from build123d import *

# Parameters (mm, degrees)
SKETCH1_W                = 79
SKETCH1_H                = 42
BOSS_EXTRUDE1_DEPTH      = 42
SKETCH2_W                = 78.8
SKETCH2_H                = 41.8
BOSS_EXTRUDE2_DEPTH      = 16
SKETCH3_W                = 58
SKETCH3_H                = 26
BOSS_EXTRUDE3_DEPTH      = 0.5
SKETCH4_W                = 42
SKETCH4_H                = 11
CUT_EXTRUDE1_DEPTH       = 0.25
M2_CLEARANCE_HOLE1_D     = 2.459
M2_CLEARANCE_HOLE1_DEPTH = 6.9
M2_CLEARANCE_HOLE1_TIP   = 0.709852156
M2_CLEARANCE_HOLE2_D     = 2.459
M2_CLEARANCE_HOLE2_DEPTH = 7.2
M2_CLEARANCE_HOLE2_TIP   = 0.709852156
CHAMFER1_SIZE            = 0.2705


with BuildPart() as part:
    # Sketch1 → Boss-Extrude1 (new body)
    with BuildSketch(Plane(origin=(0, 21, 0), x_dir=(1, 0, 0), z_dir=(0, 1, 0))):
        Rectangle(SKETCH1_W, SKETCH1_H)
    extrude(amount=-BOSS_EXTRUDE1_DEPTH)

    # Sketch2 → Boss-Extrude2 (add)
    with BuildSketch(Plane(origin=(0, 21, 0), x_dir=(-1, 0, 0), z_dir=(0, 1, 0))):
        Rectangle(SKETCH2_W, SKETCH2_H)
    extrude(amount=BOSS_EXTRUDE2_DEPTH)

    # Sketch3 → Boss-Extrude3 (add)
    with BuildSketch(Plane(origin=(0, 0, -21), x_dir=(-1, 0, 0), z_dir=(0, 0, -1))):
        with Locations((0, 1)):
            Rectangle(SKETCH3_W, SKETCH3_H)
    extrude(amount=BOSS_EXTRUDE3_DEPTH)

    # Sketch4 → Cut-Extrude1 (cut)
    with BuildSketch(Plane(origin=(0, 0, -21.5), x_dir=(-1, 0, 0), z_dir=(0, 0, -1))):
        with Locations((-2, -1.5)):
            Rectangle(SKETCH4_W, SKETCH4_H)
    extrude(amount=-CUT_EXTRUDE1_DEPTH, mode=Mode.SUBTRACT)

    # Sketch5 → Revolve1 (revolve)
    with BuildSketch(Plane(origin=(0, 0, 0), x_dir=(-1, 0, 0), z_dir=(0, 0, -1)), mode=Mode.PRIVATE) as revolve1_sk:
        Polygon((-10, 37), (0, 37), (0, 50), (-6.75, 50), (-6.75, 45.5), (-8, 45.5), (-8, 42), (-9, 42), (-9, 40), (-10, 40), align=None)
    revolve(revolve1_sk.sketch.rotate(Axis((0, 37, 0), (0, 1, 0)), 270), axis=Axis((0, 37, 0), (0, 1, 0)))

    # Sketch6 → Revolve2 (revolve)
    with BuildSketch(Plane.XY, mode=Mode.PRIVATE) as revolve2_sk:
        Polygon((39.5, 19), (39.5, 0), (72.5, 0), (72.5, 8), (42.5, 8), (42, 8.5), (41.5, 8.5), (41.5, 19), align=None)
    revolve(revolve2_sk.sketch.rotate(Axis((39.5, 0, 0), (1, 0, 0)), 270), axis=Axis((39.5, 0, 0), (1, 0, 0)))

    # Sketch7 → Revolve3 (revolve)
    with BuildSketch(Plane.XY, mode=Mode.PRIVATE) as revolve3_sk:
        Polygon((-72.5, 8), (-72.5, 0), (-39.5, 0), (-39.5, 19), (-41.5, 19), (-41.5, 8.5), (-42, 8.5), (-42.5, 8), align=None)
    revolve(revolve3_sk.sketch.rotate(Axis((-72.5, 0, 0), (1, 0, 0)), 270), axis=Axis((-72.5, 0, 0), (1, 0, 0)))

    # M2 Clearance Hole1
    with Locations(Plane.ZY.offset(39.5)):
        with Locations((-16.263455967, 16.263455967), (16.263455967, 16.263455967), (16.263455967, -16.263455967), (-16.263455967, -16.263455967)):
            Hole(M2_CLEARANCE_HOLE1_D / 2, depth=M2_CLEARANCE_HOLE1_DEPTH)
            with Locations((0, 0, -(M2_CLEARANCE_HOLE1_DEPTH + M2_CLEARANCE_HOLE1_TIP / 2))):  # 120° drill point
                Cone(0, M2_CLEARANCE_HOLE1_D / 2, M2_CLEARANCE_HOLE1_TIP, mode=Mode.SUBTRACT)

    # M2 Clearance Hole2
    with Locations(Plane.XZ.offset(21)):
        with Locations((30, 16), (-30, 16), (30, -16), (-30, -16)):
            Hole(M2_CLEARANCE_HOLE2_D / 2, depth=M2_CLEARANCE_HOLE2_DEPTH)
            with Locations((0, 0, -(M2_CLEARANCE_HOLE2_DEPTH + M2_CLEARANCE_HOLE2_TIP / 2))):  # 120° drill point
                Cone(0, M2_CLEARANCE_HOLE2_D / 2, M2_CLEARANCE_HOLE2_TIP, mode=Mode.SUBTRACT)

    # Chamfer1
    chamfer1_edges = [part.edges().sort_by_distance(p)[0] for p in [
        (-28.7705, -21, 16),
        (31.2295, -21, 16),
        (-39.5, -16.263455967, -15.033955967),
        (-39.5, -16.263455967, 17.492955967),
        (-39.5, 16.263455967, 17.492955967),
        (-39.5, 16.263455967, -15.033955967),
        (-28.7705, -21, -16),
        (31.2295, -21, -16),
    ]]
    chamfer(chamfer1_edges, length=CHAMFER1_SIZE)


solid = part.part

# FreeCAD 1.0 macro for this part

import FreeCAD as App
import Part
import Sketcher
Q = App.Units.Quantity


def edges_at(feature, points):
    """Names of the edges that pass closest to the given points."""
    edges = feature.Shape.Edges
    near = lambda p: min(range(len(edges)), key=lambda i: edges[i].distToShape(Part.Vertex(*p))[0])
    return sorted({f"Edge{near(p) + 1}" for p in points})

doc = App.newDocument("Part")
body = doc.addObject("PartDesign::Body", "Body")

sketch1 = body.newObject("Sketcher::SketchObject", "Sketch")
sketch1.AttachmentSupport = (doc.getObject("XZ_Plane"), [""])
sketch1.MapMode = "FlatFace"
sketch1.AttachmentOffset = App.Placement(App.Vector(0, 0, -21), App.Rotation())
sketch1.addGeometry([
    Part.LineSegment(App.Vector(-40, -21, 0), App.Vector(-40, 21, 0)),
    Part.LineSegment(App.Vector(-40, 21, 0), App.Vector(40, 21, 0)),
    Part.LineSegment(App.Vector(40, 21, 0), App.Vector(40, -21, 0)),
    Part.LineSegment(App.Vector(40, -21, 0), App.Vector(-40, -21, 0)),
], False)
sketch1.addConstraint([
    Sketcher.Constraint("Coincident", 0, 2, 1, 1),
    Sketcher.Constraint("Coincident", 1, 2, 2, 1),
    Sketcher.Constraint("Coincident", 2, 2, 3, 1),
    Sketcher.Constraint("Coincident", 3, 2, 0, 1),
    Sketcher.Constraint("Vertical", 0),
    Sketcher.Constraint("Horizontal", 1),
    Sketcher.Constraint("Vertical", 2),
    Sketcher.Constraint("Horizontal", 3),
    Sketcher.Constraint("Symmetric", 0, 2, 2, 2, -1, 1),
    Sketcher.Constraint("DistanceX", 1, 1, 1, 2, Q("79 mm")),
    Sketcher.Constraint("DistanceY", 0, 1, 0, 2, Q("42 mm")),
])
pad1 = body.newObject("PartDesign::Pad", "Pad")
pad1.Profile = sketch1
pad1.Length = 42

sketch2 = body.newObject("Sketcher::SketchObject", "Sketch001")
sketch2.AttachmentSupport = (doc.getObject("XZ_Plane"), [""])
sketch2.MapMode = "FlatFace"
sketch2.AttachmentOffset = App.Placement(App.Vector(0, 0, -21), App.Rotation())
sketch2.addGeometry([
    Part.LineSegment(App.Vector(39, 21, 0), App.Vector(39, -21, 0)),
    Part.LineSegment(App.Vector(39, -21, 0), App.Vector(-39, -21, 0)),
    Part.LineSegment(App.Vector(-39, -21, 0), App.Vector(-39, 21, 0)),
    Part.LineSegment(App.Vector(-39, 21, 0), App.Vector(39, 21, 0)),
], False)
sketch2.addConstraint([
    Sketcher.Constraint("Coincident", 0, 2, 1, 1),
    Sketcher.Constraint("Coincident", 1, 2, 2, 1),
    Sketcher.Constraint("Coincident", 2, 2, 3, 1),
    Sketcher.Constraint("Coincident", 3, 2, 0, 1),
    Sketcher.Constraint("Vertical", 0),
    Sketcher.Constraint("Horizontal", 1),
    Sketcher.Constraint("Vertical", 2),
    Sketcher.Constraint("Horizontal", 3),
    Sketcher.Constraint("Symmetric", 0, 2, 2, 2, -1, 1),
    Sketcher.Constraint("DistanceX", 1, 2, 1, 1, Q("78.8 mm")),
    Sketcher.Constraint("DistanceY", 0, 2, 0, 1, Q("41.8 mm")),
])
pad2 = body.newObject("PartDesign::Pad", "Pad001")
pad2.Profile = sketch2
pad2.Length = 16
pad2.Reversed = True

sketch3 = body.newObject("Sketcher::SketchObject", "Sketch002")
sketch3.AttachmentSupport = (doc.getObject("XY_Plane"), [""])
sketch3.MapMode = "FlatFace"
sketch3.AttachmentOffset = App.Placement(App.Vector(0, 0, -21), App.Rotation())
sketch3.addGeometry([
    Part.LineSegment(App.Vector(29, 14, 0), App.Vector(29, -12, 0)),
    Part.LineSegment(App.Vector(29, -12, 0), App.Vector(-29, -12, 0)),
    Part.LineSegment(App.Vector(-29, -12, 0), App.Vector(-29, 14, 0)),
    Part.LineSegment(App.Vector(-29, 14, 0), App.Vector(29, 14, 0)),
], False)
sketch3.addConstraint([
    Sketcher.Constraint("Coincident", 0, 2, 1, 1),
    Sketcher.Constraint("Coincident", 1, 2, 2, 1),
    Sketcher.Constraint("Coincident", 2, 2, 3, 1),
    Sketcher.Constraint("Coincident", 3, 2, 0, 1),
    Sketcher.Constraint("Vertical", 0),
    Sketcher.Constraint("Horizontal", 1),
    Sketcher.Constraint("Vertical", 2),
    Sketcher.Constraint("Horizontal", 3),
    Sketcher.Constraint("DistanceX", 1, 2, 1, 1, Q("58 mm")),
    Sketcher.Constraint("DistanceY", 0, 2, 0, 1, Q("26 mm")),
    Sketcher.Constraint("DistanceX", -1, 1, 0, 2, Q("29 mm")),
    Sketcher.Constraint("DistanceY", 0, 2, -1, 1, Q("12 mm")),
])
pad3 = body.newObject("PartDesign::Pad", "Pad002")
pad3.Profile = sketch3
pad3.Length = 0.5
pad3.Reversed = True

sketch4 = body.newObject("Sketcher::SketchObject", "Sketch003")
sketch4.AttachmentSupport = (doc.getObject("XY_Plane"), [""])
sketch4.MapMode = "FlatFace"
sketch4.AttachmentOffset = App.Placement(App.Vector(0, 0, -21.5), App.Rotation())
sketch4.addGeometry([
    Part.LineSegment(App.Vector(23, 4, 0), App.Vector(23, -7, 0)),
    Part.LineSegment(App.Vector(23, -7, 0), App.Vector(-19, -7, 0)),
    Part.LineSegment(App.Vector(-19, -7, 0), App.Vector(-19, 4, 0)),
    Part.LineSegment(App.Vector(-19, 4, 0), App.Vector(23, 4, 0)),
], False)
sketch4.addConstraint([
    Sketcher.Constraint("Coincident", 0, 2, 1, 1),
    Sketcher.Constraint("Coincident", 1, 2, 2, 1),
    Sketcher.Constraint("Coincident", 2, 2, 3, 1),
    Sketcher.Constraint("Coincident", 3, 2, 0, 1),
    Sketcher.Constraint("Vertical", 0),
    Sketcher.Constraint("Horizontal", 1),
    Sketcher.Constraint("Vertical", 2),
    Sketcher.Constraint("Horizontal", 3),
    Sketcher.Constraint("DistanceX", 1, 2, 1, 1, Q("42 mm")),
    Sketcher.Constraint("DistanceY", 0, 2, 0, 1, Q("11 mm")),
    Sketcher.Constraint("DistanceX", -1, 1, 0, 2, Q("23 mm")),
    Sketcher.Constraint("DistanceY", 0, 2, -1, 1, Q("7 mm")),
])
pocket1 = body.newObject("PartDesign::Pocket", "Pocket")
pocket1.Profile = sketch4
pocket1.Length = 0.25
pocket1.Reversed = True

sketch5 = body.newObject("Sketcher::SketchObject", "Sketch004")
sketch5.AttachmentSupport = (doc.getObject("XY_Plane"), [""])
sketch5.MapMode = "FlatFace"
sketch5.addGeometry([
    Part.LineSegment(App.Vector(10, 37, 0), App.Vector(0, 37, 0)),
    Part.LineSegment(App.Vector(0, 37, 0), App.Vector(0, 50, 0)),
    Part.LineSegment(App.Vector(0, 50, 0), App.Vector(6.8, 50, 0)),
    Part.LineSegment(App.Vector(6.8, 50, 0), App.Vector(6.8, 45.5, 0)),
    Part.LineSegment(App.Vector(6.8, 45.5, 0), App.Vector(8, 45.5, 0)),
    Part.LineSegment(App.Vector(8, 45.5, 0), App.Vector(8, 42, 0)),
    Part.LineSegment(App.Vector(8, 42, 0), App.Vector(9, 42, 0)),
    Part.LineSegment(App.Vector(9, 42, 0), App.Vector(9, 40, 0)),
    Part.LineSegment(App.Vector(9, 40, 0), App.Vector(10, 40, 0)),
    Part.LineSegment(App.Vector(10, 40, 0), App.Vector(10, 37, 0)),
], False)
sketch5.addConstraint([
    Sketcher.Constraint("Coincident", 0, 2, 1, 1),
    Sketcher.Constraint("Coincident", 1, 2, 2, 1),
    Sketcher.Constraint("Coincident", 2, 2, 3, 1),
    Sketcher.Constraint("Coincident", 3, 2, 4, 1),
    Sketcher.Constraint("Coincident", 4, 2, 5, 1),
    Sketcher.Constraint("Coincident", 5, 2, 6, 1),
    Sketcher.Constraint("Coincident", 6, 2, 7, 1),
    Sketcher.Constraint("Coincident", 7, 2, 8, 1),
    Sketcher.Constraint("Coincident", 8, 2, 9, 1),
    Sketcher.Constraint("Coincident", 9, 2, 0, 1),
    Sketcher.Constraint("Horizontal", 0),
    Sketcher.Constraint("Vertical", 1),
    Sketcher.Constraint("Horizontal", 2),
    Sketcher.Constraint("Vertical", 3),
    Sketcher.Constraint("Horizontal", 4),
    Sketcher.Constraint("Vertical", 5),
    Sketcher.Constraint("Horizontal", 6),
    Sketcher.Constraint("Vertical", 7),
    Sketcher.Constraint("Horizontal", 8),
    Sketcher.Constraint("Vertical", 9),
    Sketcher.Constraint("PointOnObject", 0, 2, -2),
    Sketcher.Constraint("Equal", 6, 8),
    Sketcher.Constraint("DistanceX", 0, 2, 0, 1, Q("10 mm")),
    Sketcher.Constraint("DistanceX", 6, 1, 6, 2, Q("1 mm")),
    Sketcher.Constraint("DistanceY", 1, 1, 1, 2, Q("13 mm")),
    Sketcher.Constraint("DistanceY", 7, 2, 7, 1, Q("2 mm")),
    Sketcher.Constraint("DistanceY", 9, 2, 9, 1, Q("3 mm")),
    Sketcher.Constraint("DistanceY", 3, 2, 3, 1, Q("4.5 mm")),
    Sketcher.Constraint("DistanceY", -1, 1, 0, 2, Q("37 mm")),
    Sketcher.Constraint("DistanceX", 2, 1, 2, 2, Q("6.75 mm")),
])
revolution = body.newObject("PartDesign::Revolution", "Revolution")
revolution.Profile = sketch5
revolution.ReferenceAxis = (sketch5, ["V_Axis"])
revolution.Angle = 360

sketch6 = body.newObject("Sketcher::SketchObject", "Sketch005")
sketch6.AttachmentSupport = (doc.getObject("XY_Plane"), [""])
sketch6.MapMode = "FlatFace"
sketch6.addGeometry([
    Part.LineSegment(App.Vector(39.5, 19, 0), App.Vector(39.5, 0, 0)),
    Part.LineSegment(App.Vector(39.5, 0, 0), App.Vector(72.5, 0, 0)),
    Part.LineSegment(App.Vector(72.5, 0, 0), App.Vector(72.5, 8, 0)),
    Part.LineSegment(App.Vector(72.5, 8, 0), App.Vector(42.5, 8, 0)),
    Part.LineSegment(App.Vector(42.5, 8, 0), App.Vector(42, 8.5, 0)),
    Part.LineSegment(App.Vector(42, 8.5, 0), App.Vector(41.5, 8.5, 0)),
    Part.LineSegment(App.Vector(41.5, 8.5, 0), App.Vector(41.5, 19, 0)),
    Part.LineSegment(App.Vector(41.5, 19, 0), App.Vector(39.5, 19, 0)),
], False)
sketch6.addConstraint([
    Sketcher.Constraint("Coincident", 0, 2, 1, 1),
    Sketcher.Constraint("Coincident", 1, 2, 2, 1),
    Sketcher.Constraint("Coincident", 2, 2, 3, 1),
    Sketcher.Constraint("Coincident", 3, 2, 4, 1),
    Sketcher.Constraint("Coincident", 4, 2, 5, 1),
    Sketcher.Constraint("Coincident", 5, 2, 6, 1),
    Sketcher.Constraint("Coincident", 6, 2, 7, 1),
    Sketcher.Constraint("Coincident", 7, 2, 0, 1),
    Sketcher.Constraint("Vertical", 0),
    Sketcher.Constraint("Horizontal", 1),
    Sketcher.Constraint("Vertical", 2),
    Sketcher.Constraint("Horizontal", 3),
    Sketcher.Constraint("Horizontal", 5),
    Sketcher.Constraint("Vertical", 6),
    Sketcher.Constraint("Horizontal", 7),
    Sketcher.Constraint("PointOnObject", 0, 2, -1),
    Sketcher.Constraint("DistanceX", 1, 1, 1, 2, Q("33 mm")),
    Sketcher.Constraint("DistanceX", 3, 2, 3, 1, Q("30 mm")),
    Sketcher.Constraint("DistanceX", 7, 2, 7, 1, Q("2 mm")),
    Sketcher.Constraint("DistanceY", 0, 2, 0, 1, Q("19 mm")),
    Sketcher.Constraint("DistanceY", 2, 1, 2, 2, Q("8 mm")),
    Sketcher.Constraint("Angle", 4, Q("135 deg")),
    Sketcher.Constraint("DistanceX", 5, 2, 5, 1, Q("0.5 mm")),
    Sketcher.Constraint("DistanceX", -1, 1, 4, 2, Q("42 mm")),
])
revolution2 = body.newObject("PartDesign::Revolution", "Revolution001")
revolution2.Profile = sketch6
revolution2.ReferenceAxis = (sketch6, ["H_Axis"])
revolution2.Angle = 360

sketch7 = body.newObject("Sketcher::SketchObject", "Sketch006")
sketch7.AttachmentSupport = (doc.getObject("XY_Plane"), [""])
sketch7.MapMode = "FlatFace"
sketch7.addGeometry([
    Part.LineSegment(App.Vector(-72.5, 8, 0), App.Vector(-72.5, 0, 0)),
    Part.LineSegment(App.Vector(-72.5, 0, 0), App.Vector(-39.5, 0, 0)),
    Part.LineSegment(App.Vector(-39.5, 0, 0), App.Vector(-39.5, 19, 0)),
    Part.LineSegment(App.Vector(-39.5, 19, 0), App.Vector(-41.5, 19, 0)),
    Part.LineSegment(App.Vector(-41.5, 19, 0), App.Vector(-41.5, 8.5, 0)),
    Part.LineSegment(App.Vector(-41.5, 8.5, 0), App.Vector(-42, 8.5, 0)),
    Part.LineSegment(App.Vector(-42, 8.5, 0), App.Vector(-42.5, 8, 0)),
    Part.LineSegment(App.Vector(-42.5, 8, 0), App.Vector(-72.5, 8, 0)),
], False)
sketch7.addConstraint([
    Sketcher.Constraint("Coincident", 0, 2, 1, 1),
    Sketcher.Constraint("Coincident", 1, 2, 2, 1),
    Sketcher.Constraint("Coincident", 2, 2, 3, 1),
    Sketcher.Constraint("Coincident", 3, 2, 4, 1),
    Sketcher.Constraint("Coincident", 4, 2, 5, 1),
    Sketcher.Constraint("Coincident", 5, 2, 6, 1),
    Sketcher.Constraint("Coincident", 6, 2, 7, 1),
    Sketcher.Constraint("Coincident", 7, 2, 0, 1),
    Sketcher.Constraint("Vertical", 0),
    Sketcher.Constraint("Horizontal", 1),
    Sketcher.Constraint("Vertical", 2),
    Sketcher.Constraint("Horizontal", 3),
    Sketcher.Constraint("Vertical", 4),
    Sketcher.Constraint("Horizontal", 5),
    Sketcher.Constraint("Horizontal", 7),
    Sketcher.Constraint("PointOnObject", 0, 2, -1),
    Sketcher.Constraint("DistanceX", 1, 1, 1, 2, Q("33 mm")),
    Sketcher.Constraint("DistanceX", 3, 2, 3, 1, Q("2 mm")),
    Sketcher.Constraint("DistanceX", 7, 2, 7, 1, Q("30 mm")),
    Sketcher.Constraint("DistanceY", 0, 2, 0, 1, Q("8 mm")),
    Sketcher.Constraint("DistanceY", 2, 1, 2, 2, Q("19 mm")),
    Sketcher.Constraint("Angle", 6, Q("-135 deg")),
    Sketcher.Constraint("DistanceX", 5, 2, 5, 1, Q("0.5 mm")),
    Sketcher.Constraint("DistanceX", 5, 2, -1, 1, Q("42 mm")),
])
revolution3 = body.newObject("PartDesign::Revolution", "Revolution002")
revolution3.Profile = sketch7
revolution3.ReferenceAxis = (sketch7, ["H_Axis"])
revolution3.Angle = 360

sketch8 = body.newObject("Sketcher::SketchObject", "Sketch007")
sketch8.AttachmentSupport = (doc.getObject("YZ_Plane"), [""])
sketch8.MapMode = "FlatFace"
sketch8.AttachmentOffset = App.Placement(App.Vector(0, 0, -39.5), App.Rotation())
sketch8.addGeometry([
    Part.Circle(App.Vector(16.3, -16.3, 0), App.Vector(0, 0, 1), 1.2),
    Part.Circle(App.Vector(16.3, 16.3, 0), App.Vector(0, 0, 1), 1.2),
    Part.Circle(App.Vector(-16.3, 16.3, 0), App.Vector(0, 0, 1), 1.2),
    Part.Circle(App.Vector(-16.3, -16.3, 0), App.Vector(0, 0, 1), 1.2),
], False)
sketch8.addConstraint([
    Sketcher.Constraint("Equal", 0, 1),
    Sketcher.Constraint("Equal", 1, 2),
    Sketcher.Constraint("Equal", 2, 3),
    Sketcher.Constraint("Symmetric", 0, 3, 2, 3, -1, 1),
    Sketcher.Constraint("Symmetric", 1, 3, 3, 3, -1, 1),
    Sketcher.Constraint("Symmetric", 1, 3, 2, 3, -2),
    Sketcher.Constraint("Diameter", 0, Q("2.459 mm")),
    Sketcher.Constraint("DistanceY", 0, 3, 1, 3, Q("32.526912 mm")),
    Sketcher.Constraint("DistanceX", 2, 3, 1, 3, Q("32.526912 mm")),
])
doc.recompute()
hole = body.newObject("PartDesign::Hole", "Hole")
hole.Profile = sketch8
hole.ThreadType = "None"
hole.Diameter = 2.459
hole.DepthType = "Dimension"
hole.Depth = 6.9
hole.DrillPoint = "Angled"
hole.DrillPointAngle = 120
hole.Reversed = True

sketch9 = body.newObject("Sketcher::SketchObject", "Sketch008")
sketch9.AttachmentSupport = (doc.getObject("XZ_Plane"), [""])
sketch9.MapMode = "FlatFace"
sketch9.AttachmentOffset = App.Placement(App.Vector(0, 0, 21), App.Rotation())
sketch9.addGeometry([
    Part.Circle(App.Vector(30, 16, 0), App.Vector(0, 0, 1), 1.2),
    Part.Circle(App.Vector(-30, 16, 0), App.Vector(0, 0, 1), 1.2),
    Part.Circle(App.Vector(30, -16, 0), App.Vector(0, 0, 1), 1.2),
    Part.Circle(App.Vector(-30, -16, 0), App.Vector(0, 0, 1), 1.2),
], False)
sketch9.addConstraint([
    Sketcher.Constraint("Equal", 0, 1),
    Sketcher.Constraint("Equal", 1, 2),
    Sketcher.Constraint("Equal", 2, 3),
    Sketcher.Constraint("Symmetric", 1, 3, 2, 3, -1, 1),
    Sketcher.Constraint("Symmetric", 0, 3, 3, 3, -1, 1),
    Sketcher.Constraint("Symmetric", 0, 3, 1, 3, -2),
    Sketcher.Constraint("Diameter", 0, Q("2.459 mm")),
    Sketcher.Constraint("DistanceX", -1, 1, 0, 3, Q("30 mm")),
    Sketcher.Constraint("DistanceY", -1, 1, 0, 3, Q("16 mm")),
])
doc.recompute()
hole2 = body.newObject("PartDesign::Hole", "Hole001")
hole2.Profile = sketch9
hole2.ThreadType = "None"
hole2.Diameter = 2.459
hole2.DepthType = "Dimension"
hole2.Depth = 7.2
hole2.DrillPoint = "Angled"
hole2.DrillPointAngle = 120
doc.recompute()

chamfer = body.newObject("PartDesign::Chamfer", "Chamfer")
chamfer.Base = (hole2, edges_at(hole2, [
    (-28.77, -21, 16),
    (31.23, -21, 16),
    (-39.5, -16.263, -15.034),
    (-39.5, -16.263, 17.493),
    (-39.5, 16.263, 17.493),
    (-39.5, 16.263, -15.034),
    (-28.77, -21, -16),
    (31.23, -21, -16),
]))
chamfer.Size = 0.2705

doc.recompute()
